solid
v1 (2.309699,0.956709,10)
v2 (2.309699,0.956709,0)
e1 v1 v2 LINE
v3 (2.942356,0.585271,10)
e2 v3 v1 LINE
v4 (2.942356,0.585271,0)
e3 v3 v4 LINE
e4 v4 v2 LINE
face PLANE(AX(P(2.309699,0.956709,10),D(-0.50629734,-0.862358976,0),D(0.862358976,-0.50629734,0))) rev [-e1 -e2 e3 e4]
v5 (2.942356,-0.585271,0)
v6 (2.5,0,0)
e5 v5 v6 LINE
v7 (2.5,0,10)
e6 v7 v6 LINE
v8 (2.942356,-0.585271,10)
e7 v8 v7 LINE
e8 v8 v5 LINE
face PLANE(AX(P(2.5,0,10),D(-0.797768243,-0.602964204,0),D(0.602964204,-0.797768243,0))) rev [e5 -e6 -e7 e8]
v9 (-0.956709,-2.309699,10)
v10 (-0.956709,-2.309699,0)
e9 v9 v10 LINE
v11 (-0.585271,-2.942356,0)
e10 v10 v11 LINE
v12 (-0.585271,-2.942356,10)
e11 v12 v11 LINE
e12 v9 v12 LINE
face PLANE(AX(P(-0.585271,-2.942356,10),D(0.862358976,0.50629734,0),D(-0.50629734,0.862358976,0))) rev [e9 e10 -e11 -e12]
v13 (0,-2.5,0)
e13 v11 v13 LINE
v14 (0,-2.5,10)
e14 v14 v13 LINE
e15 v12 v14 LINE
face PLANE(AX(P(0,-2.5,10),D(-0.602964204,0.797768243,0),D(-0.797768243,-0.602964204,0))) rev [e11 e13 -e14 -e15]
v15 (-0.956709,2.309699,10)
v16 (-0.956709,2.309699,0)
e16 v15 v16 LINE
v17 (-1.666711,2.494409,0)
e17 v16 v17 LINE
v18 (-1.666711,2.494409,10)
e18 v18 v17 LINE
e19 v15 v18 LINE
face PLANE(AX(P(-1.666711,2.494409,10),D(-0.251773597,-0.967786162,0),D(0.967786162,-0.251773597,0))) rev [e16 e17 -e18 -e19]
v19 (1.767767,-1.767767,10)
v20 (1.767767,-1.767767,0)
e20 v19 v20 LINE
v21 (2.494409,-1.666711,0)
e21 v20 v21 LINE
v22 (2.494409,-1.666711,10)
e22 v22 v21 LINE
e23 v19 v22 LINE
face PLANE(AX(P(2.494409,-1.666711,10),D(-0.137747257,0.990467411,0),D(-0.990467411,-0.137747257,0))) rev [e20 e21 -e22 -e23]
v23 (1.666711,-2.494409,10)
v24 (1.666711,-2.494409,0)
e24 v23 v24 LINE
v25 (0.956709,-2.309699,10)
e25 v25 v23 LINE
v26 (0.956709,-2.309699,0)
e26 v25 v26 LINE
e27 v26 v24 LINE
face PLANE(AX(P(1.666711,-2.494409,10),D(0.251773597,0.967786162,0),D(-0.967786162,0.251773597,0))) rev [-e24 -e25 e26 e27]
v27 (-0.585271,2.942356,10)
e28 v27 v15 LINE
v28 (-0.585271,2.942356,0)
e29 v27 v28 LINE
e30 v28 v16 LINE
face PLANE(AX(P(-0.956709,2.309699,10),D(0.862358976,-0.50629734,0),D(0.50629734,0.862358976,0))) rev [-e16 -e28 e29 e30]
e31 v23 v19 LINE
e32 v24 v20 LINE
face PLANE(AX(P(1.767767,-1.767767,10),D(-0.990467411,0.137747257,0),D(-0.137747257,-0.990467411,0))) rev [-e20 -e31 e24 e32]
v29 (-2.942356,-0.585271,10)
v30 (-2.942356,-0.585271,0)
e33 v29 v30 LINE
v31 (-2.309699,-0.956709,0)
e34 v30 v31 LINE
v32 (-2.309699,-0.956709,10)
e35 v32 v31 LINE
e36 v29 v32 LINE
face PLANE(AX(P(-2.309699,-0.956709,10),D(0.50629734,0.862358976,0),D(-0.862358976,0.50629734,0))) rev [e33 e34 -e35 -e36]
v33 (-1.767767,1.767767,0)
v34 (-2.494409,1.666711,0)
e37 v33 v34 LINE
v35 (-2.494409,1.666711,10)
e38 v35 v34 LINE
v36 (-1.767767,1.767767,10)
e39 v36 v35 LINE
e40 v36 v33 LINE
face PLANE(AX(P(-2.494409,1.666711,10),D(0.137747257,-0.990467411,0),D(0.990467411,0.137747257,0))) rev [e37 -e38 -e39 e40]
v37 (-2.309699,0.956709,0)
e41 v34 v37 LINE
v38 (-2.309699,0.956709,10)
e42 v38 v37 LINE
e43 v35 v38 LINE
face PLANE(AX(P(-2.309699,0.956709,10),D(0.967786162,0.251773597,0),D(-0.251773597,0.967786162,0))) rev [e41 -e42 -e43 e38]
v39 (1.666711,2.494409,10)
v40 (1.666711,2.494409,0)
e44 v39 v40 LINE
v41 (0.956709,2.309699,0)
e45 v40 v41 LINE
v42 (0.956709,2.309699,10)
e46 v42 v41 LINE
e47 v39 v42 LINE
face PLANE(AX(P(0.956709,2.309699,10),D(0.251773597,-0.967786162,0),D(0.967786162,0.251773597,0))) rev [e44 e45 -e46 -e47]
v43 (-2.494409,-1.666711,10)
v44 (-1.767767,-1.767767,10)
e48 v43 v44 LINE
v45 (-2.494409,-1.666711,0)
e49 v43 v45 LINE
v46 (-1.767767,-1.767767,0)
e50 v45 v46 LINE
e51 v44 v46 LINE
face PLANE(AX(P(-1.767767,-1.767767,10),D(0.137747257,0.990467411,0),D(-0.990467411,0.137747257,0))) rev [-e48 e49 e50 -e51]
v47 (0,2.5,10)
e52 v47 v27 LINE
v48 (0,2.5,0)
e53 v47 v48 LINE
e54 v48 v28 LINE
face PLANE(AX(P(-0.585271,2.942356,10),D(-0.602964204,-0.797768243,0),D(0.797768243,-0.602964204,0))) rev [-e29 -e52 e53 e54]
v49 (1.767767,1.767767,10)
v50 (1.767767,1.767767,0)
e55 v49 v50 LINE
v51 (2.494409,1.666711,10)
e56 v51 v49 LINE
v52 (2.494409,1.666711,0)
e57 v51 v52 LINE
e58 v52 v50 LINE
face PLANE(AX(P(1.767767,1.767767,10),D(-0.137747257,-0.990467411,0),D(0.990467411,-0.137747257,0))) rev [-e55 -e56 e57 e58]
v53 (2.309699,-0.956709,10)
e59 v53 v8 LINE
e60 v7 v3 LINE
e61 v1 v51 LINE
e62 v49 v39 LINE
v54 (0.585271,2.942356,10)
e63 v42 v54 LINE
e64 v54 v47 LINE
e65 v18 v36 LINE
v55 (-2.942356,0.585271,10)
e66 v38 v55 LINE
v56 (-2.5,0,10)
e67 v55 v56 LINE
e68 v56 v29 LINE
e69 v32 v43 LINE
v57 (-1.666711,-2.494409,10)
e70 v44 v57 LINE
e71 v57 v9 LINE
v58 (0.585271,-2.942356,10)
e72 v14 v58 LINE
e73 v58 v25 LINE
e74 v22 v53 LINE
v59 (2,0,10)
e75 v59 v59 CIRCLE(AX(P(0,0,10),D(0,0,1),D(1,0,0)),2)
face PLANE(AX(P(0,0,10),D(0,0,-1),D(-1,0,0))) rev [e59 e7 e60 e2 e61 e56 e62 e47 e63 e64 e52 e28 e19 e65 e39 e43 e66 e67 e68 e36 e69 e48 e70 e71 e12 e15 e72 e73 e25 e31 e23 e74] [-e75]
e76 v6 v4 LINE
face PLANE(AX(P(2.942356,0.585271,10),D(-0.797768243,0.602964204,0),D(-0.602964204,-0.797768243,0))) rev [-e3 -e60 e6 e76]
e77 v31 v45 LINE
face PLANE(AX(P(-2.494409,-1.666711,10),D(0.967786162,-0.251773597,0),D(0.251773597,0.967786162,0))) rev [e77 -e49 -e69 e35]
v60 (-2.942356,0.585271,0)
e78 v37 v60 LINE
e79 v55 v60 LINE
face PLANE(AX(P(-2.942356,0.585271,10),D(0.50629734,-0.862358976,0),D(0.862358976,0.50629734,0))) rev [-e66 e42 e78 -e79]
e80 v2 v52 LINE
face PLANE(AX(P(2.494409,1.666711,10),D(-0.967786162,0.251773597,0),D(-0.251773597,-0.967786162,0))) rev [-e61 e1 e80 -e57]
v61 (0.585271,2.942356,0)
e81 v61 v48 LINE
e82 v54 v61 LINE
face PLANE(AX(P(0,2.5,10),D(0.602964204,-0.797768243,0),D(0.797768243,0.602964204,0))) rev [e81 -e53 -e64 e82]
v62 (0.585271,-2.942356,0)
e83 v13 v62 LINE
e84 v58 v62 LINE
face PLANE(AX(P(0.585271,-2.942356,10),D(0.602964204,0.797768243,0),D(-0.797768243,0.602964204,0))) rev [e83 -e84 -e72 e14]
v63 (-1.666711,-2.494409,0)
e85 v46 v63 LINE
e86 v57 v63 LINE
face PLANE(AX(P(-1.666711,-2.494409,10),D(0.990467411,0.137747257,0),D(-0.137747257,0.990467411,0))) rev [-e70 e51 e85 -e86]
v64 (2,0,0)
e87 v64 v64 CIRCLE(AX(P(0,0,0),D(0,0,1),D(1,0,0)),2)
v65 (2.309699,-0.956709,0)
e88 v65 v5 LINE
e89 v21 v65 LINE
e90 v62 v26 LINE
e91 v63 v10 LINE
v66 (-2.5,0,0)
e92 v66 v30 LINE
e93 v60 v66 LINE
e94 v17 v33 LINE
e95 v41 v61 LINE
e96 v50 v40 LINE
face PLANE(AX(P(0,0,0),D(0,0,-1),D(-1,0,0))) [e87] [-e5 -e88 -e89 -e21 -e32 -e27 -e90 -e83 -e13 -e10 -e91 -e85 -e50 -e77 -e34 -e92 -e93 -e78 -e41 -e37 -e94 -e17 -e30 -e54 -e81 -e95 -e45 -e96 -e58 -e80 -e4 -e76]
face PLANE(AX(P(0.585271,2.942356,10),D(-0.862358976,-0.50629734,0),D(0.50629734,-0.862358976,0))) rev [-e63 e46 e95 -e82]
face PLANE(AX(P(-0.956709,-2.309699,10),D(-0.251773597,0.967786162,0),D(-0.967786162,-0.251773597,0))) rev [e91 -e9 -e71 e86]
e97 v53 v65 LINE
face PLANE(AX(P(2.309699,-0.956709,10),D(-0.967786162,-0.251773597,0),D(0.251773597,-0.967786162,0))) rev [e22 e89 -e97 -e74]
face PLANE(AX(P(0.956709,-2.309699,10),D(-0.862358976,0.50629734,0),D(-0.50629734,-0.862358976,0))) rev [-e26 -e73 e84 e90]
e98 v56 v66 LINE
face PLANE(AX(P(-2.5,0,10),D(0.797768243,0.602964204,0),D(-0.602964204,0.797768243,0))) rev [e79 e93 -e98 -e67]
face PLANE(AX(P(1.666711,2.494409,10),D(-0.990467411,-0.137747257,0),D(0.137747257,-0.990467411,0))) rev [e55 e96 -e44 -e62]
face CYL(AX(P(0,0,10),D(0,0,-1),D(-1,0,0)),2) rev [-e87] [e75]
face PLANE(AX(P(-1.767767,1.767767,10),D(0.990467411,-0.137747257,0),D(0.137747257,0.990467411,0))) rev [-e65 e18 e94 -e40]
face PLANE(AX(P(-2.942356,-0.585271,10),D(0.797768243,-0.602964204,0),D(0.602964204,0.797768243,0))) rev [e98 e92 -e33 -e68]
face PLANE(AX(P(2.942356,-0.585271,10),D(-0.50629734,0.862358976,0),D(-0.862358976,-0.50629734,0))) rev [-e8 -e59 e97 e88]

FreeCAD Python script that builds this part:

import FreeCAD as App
import Part
import Sketcher


def add_polygon(sketch, points):
    """Adds a closed chain of lines whose ends are joined by coincident constraints."""
    first, n = sketch.GeometryCount, len(points)
    for a, b in zip(points, points[1:] + points[:1]):
        sketch.addGeometry(Part.LineSegment(App.Vector(*a, 0), App.Vector(*b, 0)), False)
    for i in range(n):
        sketch.addConstraint(Sketcher.Constraint("Coincident", first + i, 2, first + (i + 1) % n, 1))

doc = App.newDocument("Part")
body = doc.addObject("PartDesign::Body", "Body")

sketch1 = body.newObject("Sketcher::SketchObject", "Sketch")
sketch1.AttachmentSupport = (doc.getObject("XY_Plane"), [""])
sketch1.MapMode = "FlatFace"
add_polygon(sketch1, [(0.585271, 2.942356), (0, 2.5), (-0.585271, 2.942356), (-0.956709, 2.309699), (-1.666711, 2.494409), (-1.767767, 1.767767), (-2.494409, 1.666711), (-2.309699, 0.956709), (-2.942356, 0.585271), (-2.5, 0), (-2.942356, -0.585271), (-2.309699, -0.956709), (-2.494409, -1.666711), (-1.767767, -1.767767), (-1.666711, -2.494409), (-0.956709, -2.309699), (-0.585271, -2.942356), (0, -2.5), (0.585271, -2.942356), (0.956709, -2.309699), (1.666711, -2.494409), (1.767767, -1.767767), (2.494409, -1.666711), (2.309699, -0.956709), (2.942356, -0.585271), (2.5, 0), (2.942356, 0.585271), (2.309699, 0.956709), (2.494409, 1.666711), (1.767767, 1.767767), (1.666711, 2.494409), (0.956709, 2.309699)])
sketch1.addGeometry(Part.Circle(App.Vector(0, 0, 0), App.Vector(0, 0, 1), 2), False)
sketch1.addConstraint(Sketcher.Constraint("Coincident", 32, 3, -1, 1))
sketch1.addConstraint(Sketcher.Constraint("Symmetric", 0, 2, 16, 2, -1, 1))
sketch1.addConstraint(Sketcher.Constraint("Symmetric", 1, 2, 17, 2, -1, 1))
sketch1.addConstraint(Sketcher.Constraint("Symmetric", 2, 2, 18, 2, -1, 1))
sketch1.addConstraint(Sketcher.Constraint("Symmetric", 3, 2, 19, 2, -1, 1))
sketch1.addConstraint(Sketcher.Constraint("Symmetric", 4, 2, 20, 2, -1, 1))
sketch1.addConstraint(Sketcher.Constraint("Symmetric", 5, 2, 21, 2, -1, 1))
sketch1.addConstraint(Sketcher.Constraint("Symmetric", 6, 2, 22, 2, -1, 1))
sketch1.addConstraint(Sketcher.Constraint("Symmetric", 7, 2, 23, 2, -1, 1))
sketch1.addConstraint(Sketcher.Constraint("Symmetric", 8, 2, 24, 2, -1, 1))
sketch1.addConstraint(Sketcher.Constraint("Symmetric", 9, 2, 25, 2, -1, 1))
sketch1.addConstraint(Sketcher.Constraint("Symmetric", 10, 2, 26, 2, -1, 1))
sketch1.addConstraint(Sketcher.Constraint("Symmetric", 11, 2, 27, 2, -1, 1))
sketch1.addConstraint(Sketcher.Constraint("Symmetric", 12, 2, 28, 2, -1, 1))
sketch1.addConstraint(Sketcher.Constraint("Symmetric", 13, 2, 29, 2, -1, 1))
sketch1.addConstraint(Sketcher.Constraint("Symmetric", 14, 2, 30, 2, -1, 1))
sketch1.addConstraint(Sketcher.Constraint("Symmetric", 15, 2, 31, 2, -1, 1))
sketch1.addConstraint(Sketcher.Constraint("Symmetric", 15, 2, 17, 2, -2))
sketch1.addConstraint(Sketcher.Constraint("Symmetric", 14, 2, 18, 2, -2))
sketch1.addConstraint(Sketcher.Constraint("Symmetric", 13, 2, 19, 2, -2))
sketch1.addConstraint(Sketcher.Constraint("Symmetric", 12, 2, 20, 2, -2))
sketch1.addConstraint(Sketcher.Constraint("Symmetric", 11, 2, 21, 2, -2))
sketch1.addConstraint(Sketcher.Constraint("Symmetric", 10, 2, 22, 2, -2))
sketch1.addConstraint(Sketcher.Constraint("Symmetric", 9, 2, 23, 2, -2))
sketch1.addConstraint(Sketcher.Constraint("PointOnObject", 0, 2, -2))
sketch1.addConstraint(Sketcher.Constraint("PointOnObject", 8, 2, -1))
sketch1.addConstraint(Sketcher.Constraint("Perpendicular", 0, 8))
sketch1.addConstraint(Sketcher.Constraint("Perpendicular", 2, 10))
sketch1.addConstraint(Sketcher.Constraint("Perpendicular", 3, 11))
sketch1.addConstraint(Sketcher.Constraint("Perpendicular", 4, 12))
sketch1.addConstraint(Sketcher.Constraint("Equal", 1, 2))
sketch1.addConstraint(Sketcher.Constraint("Equal", 2, 3))
sketch1.addConstraint(Sketcher.Constraint("Equal", 3, 4))
sketch1.addConstraint(Sketcher.Constraint("Equal", 4, 5))
sketch1.addConstraint(Sketcher.Constraint("Equal", 5, 6))
sketch1.addConstraint(Sketcher.Constraint("Equal", 6, 7))
sketch1.addConstraint(Sketcher.Constraint("Equal", 7, 8))
sketch1.addConstraint(Sketcher.Constraint("Diameter", 32, 4.0))
sketch1.addConstraint(Sketcher.Constraint("DistanceY", -1, 1, 0, 2, 2.5))
sketch1.addConstraint(Sketcher.Constraint("DistanceY", -1, 1, 2, 2, 2.309699))
sketch1.addConstraint(Sketcher.Constraint("DistanceX", 5, 2, 3, 2, 0.827698))
sketch1.addConstraint(Sketcher.Constraint("DistanceX", 5, 2, 2, 2, 1.5377))
sketch1.addConstraint(Sketcher.Constraint("DistanceX", 1, 2, -1, 1, 0.585271))
pad1 = body.newObject("PartDesign::Pad", "Pad")
pad1.Profile = sketch1
pad1.Length = 10

doc.recompute()
